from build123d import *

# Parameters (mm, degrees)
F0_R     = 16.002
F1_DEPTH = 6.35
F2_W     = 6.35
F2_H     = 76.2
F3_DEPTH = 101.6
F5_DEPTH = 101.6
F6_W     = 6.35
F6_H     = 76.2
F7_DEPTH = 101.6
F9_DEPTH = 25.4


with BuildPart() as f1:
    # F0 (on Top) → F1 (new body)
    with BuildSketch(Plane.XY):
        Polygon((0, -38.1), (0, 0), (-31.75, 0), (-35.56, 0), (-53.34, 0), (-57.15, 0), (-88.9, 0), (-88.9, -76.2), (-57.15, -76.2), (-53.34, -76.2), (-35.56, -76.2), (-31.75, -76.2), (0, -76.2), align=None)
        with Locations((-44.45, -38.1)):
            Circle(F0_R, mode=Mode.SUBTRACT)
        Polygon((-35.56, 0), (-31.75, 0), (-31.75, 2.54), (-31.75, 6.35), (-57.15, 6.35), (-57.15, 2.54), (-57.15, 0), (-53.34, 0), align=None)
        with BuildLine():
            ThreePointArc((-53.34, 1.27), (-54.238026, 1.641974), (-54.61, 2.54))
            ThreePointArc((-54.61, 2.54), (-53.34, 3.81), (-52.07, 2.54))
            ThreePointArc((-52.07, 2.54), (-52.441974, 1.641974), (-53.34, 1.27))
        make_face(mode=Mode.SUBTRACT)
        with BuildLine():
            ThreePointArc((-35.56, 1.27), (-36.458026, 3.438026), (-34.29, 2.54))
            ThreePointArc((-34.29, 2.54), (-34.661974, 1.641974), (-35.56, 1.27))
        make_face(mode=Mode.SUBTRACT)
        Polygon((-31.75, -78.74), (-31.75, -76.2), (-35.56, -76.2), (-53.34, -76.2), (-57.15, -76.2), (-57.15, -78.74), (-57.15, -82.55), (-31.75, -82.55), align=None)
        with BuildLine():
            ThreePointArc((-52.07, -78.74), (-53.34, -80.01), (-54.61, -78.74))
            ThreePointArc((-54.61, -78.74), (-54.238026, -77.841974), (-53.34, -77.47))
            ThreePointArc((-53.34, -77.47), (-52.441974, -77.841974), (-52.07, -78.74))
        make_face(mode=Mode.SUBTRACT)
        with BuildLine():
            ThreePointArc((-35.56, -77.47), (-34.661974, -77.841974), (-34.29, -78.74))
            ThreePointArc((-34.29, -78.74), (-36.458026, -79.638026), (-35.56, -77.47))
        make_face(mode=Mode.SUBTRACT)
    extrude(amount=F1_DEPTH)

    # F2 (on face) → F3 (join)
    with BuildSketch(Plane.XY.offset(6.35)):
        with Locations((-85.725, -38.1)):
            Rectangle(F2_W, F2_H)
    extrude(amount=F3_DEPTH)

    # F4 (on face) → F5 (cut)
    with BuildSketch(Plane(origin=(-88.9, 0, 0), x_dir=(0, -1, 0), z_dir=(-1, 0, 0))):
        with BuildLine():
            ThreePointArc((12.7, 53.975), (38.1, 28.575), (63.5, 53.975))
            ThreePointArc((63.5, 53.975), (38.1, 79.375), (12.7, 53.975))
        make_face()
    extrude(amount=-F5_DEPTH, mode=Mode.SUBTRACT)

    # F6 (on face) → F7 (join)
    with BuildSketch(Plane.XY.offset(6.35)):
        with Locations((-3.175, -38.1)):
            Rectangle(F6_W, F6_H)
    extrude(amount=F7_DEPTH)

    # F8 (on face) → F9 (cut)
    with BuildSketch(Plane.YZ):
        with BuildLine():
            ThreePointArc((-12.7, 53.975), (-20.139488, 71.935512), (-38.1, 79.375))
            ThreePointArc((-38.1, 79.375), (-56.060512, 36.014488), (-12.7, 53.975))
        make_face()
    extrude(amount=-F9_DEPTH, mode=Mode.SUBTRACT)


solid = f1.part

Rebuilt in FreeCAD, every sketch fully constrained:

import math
import FreeCAD as App
import Part
import Sketcher
Q = App.Units.Quantity


def add_polygon(sketch, points):
    """Adds a closed chain of lines whose ends are joined by coincident constraints."""
    first, n = sketch.GeometryCount, len(points)
    for a, b in zip(points, points[1:] + points[:1]):
        sketch.addGeometry(Part.LineSegment(App.Vector(*a, 0), App.Vector(*b, 0)), False)
    for i in range(n):
        sketch.addConstraint(Sketcher.Constraint("Coincident", first + i, 2, first + (i + 1) % n, 1))

doc = App.newDocument("Part")
body = doc.addObject("PartDesign::Body", "Body")

# Sketch on XY plane
sketch1 = body.newObject("Sketcher::SketchObject", "Sketch")
sketch1.AttachmentSupport = (doc.getObject("XY_Plane"), [""])
sketch1.MapMode = "FlatFace"
add_polygon(sketch1, [(0, 0), (-31.8, 0), (-31.8, 6.3), (-57.1, 6.3), (-57.1, 0), (-88.9, 0), (-88.9, -76.2), (-57.1, -76.2), (-57.1, -82.5), (-31.8, -82.5), (-31.8, -76.2), (0, -76.2)])  # lines 0-11
sketch1.addGeometry(Part.ArcOfCircle(Part.Circle(App.Vector(-53.3, -78.7, 0), App.Vector(0, 0, 1), 1.3), math.radians(0), math.radians(90)), False)  # 12
sketch1.addGeometry(Part.ArcOfCircle(Part.Circle(App.Vector(-53.3, -78.7, 0), App.Vector(0, 0, 1), 1.3), math.radians(180), math.radians(360)), False)  # 13
sketch1.addGeometry(Part.ArcOfCircle(Part.Circle(App.Vector(-53.3, -78.7, 0), App.Vector(0, 0, 1), 1.3), math.radians(90), math.radians(180)), False)  # 14
sketch1.addGeometry(Part.ArcOfCircle(Part.Circle(App.Vector(-35.6, -78.7, 0), App.Vector(0, 0, 1), 1.3), math.radians(90), math.radians(360)), False)  # 15
sketch1.addGeometry(Part.ArcOfCircle(Part.Circle(App.Vector(-35.6, -78.7, 0), App.Vector(0, 0, 1), 1.3), math.radians(0), math.radians(90)), False)  # 16
sketch1.addGeometry(Part.ArcOfCircle(Part.Circle(App.Vector(-53.3, 2.5, 0), App.Vector(0, 0, 1), 1.3), math.radians(-90), math.radians(0)), False)  # 17
sketch1.addGeometry(Part.ArcOfCircle(Part.Circle(App.Vector(-53.3, 2.5, 0), App.Vector(0, 0, 1), 1.3), math.radians(180), math.radians(270)), False)  # 18
sketch1.addGeometry(Part.ArcOfCircle(Part.Circle(App.Vector(-53.3, 2.5, 0), App.Vector(0, 0, 1), 1.3), math.radians(0), math.radians(180)), False)  # 19
sketch1.addGeometry(Part.Circle(App.Vector(-44.5, -38.1, 0), App.Vector(0, 0, 1), 16), False)  # 20
sketch1.addGeometry(Part.ArcOfCircle(Part.Circle(App.Vector(-35.6, 2.5, 0), App.Vector(0, 0, 1), 1.3), math.radians(-90), math.radians(0)), False)  # 21
sketch1.addGeometry(Part.ArcOfCircle(Part.Circle(App.Vector(-35.6, 2.5, 0), App.Vector(0, 0, 1), 1.3), math.radians(0), math.radians(270)), False)  # 22
sketch1.addConstraint([
    Sketcher.Constraint("Tangent", 12, 1, 13, 2),
    Sketcher.Constraint("Tangent", 13, 1, 14, 2),
    Sketcher.Constraint("Coincident", 14, 1, 12, 2),
    Sketcher.Constraint("Tangent", 15, 1, 16, 2),
    Sketcher.Constraint("Coincident", 16, 1, 15, 2),
    Sketcher.Constraint("Coincident", 17, 1, 18, 2),
    Sketcher.Constraint("Tangent", 18, 1, 19, 2),
    Sketcher.Constraint("Tangent", 19, 1, 17, 2),
    Sketcher.Constraint("Tangent", 21, 1, 22, 2),
    Sketcher.Constraint("Coincident", 22, 1, 21, 2),
    Sketcher.Constraint("Horizontal", 0),
    Sketcher.Constraint("Vertical", 1),
    Sketcher.Constraint("Horizontal", 2),
    Sketcher.Constraint("Vertical", 3),
    Sketcher.Constraint("Horizontal", 4),
    Sketcher.Constraint("Vertical", 5),
    Sketcher.Constraint("Horizontal", 6),
    Sketcher.Constraint("Vertical", 7),
    Sketcher.Constraint("Horizontal", 8),
    Sketcher.Constraint("Vertical", 9),
    Sketcher.Constraint("Horizontal", 10),
    Sketcher.Constraint("Vertical", 11),
    Sketcher.Constraint("Coincident", 11, 2, -1, 1),
    Sketcher.Constraint("Equal", 12, 13),
    Sketcher.Constraint("Equal", 14, 15),
    Sketcher.Constraint("Equal", 16, 17),
    Sketcher.Constraint("Equal", 18, 19),
    Sketcher.Constraint("Equal", 19, 21),
    Sketcher.Constraint("PointOnObject", 3, 2, -1),
    Sketcher.Constraint("Horizontal", 14, 3, 15, 3),
    Sketcher.Constraint("Horizontal", 19, 3, 21, 3),
    Sketcher.Constraint("Horizontal", 6, 2, 9, 2),
    Sketcher.Constraint("Horizontal", 16, 3, 12, 1),
    Sketcher.Constraint("Horizontal", 12, 1, 13, 1),
    Sketcher.Constraint("Horizontal", 13, 1, 16, 1),
    Sketcher.Constraint("Horizontal", 22, 3, 18, 1),
    Sketcher.Constraint("Horizontal", 18, 1, 19, 1),
    Sketcher.Constraint("Horizontal", 19, 1, 22, 1),
    Sketcher.Constraint("Vertical", 13, 3, 17, 3),
    Sketcher.Constraint("Vertical", 16, 3, 21, 3),
    Sketcher.Constraint("Vertical", 3, 2, 6, 2),
    Sketcher.Constraint("Vertical", 1, 2, 8, 2),
    Sketcher.Constraint("Vertical", 19, 3, 14, 1),
    Sketcher.Constraint("Vertical", 22, 3, 15, 1),
    Sketcher.Constraint("Vertical", 14, 1, 17, 1),
    Sketcher.Constraint("Vertical", 15, 1, 21, 1),
    Sketcher.Constraint("Equal", 0, 4),
    Sketcher.Constraint("Equal", 3, 7),
    Sketcher.Constraint("Diameter", 20, Q("1.26 in")),
    Sketcher.Constraint("DistanceX", 2, 2, 2, 1, Q("1 in")),
    Sketcher.Constraint("DistanceY", 5, 2, 5, 1, Q("3 in")),
    Sketcher.Constraint("Radius", 12, Q("0.0499999 in")),
    Sketcher.Constraint("DistanceX", 0, 2, 0, 1, Q("1.25 in")),
    Sketcher.Constraint("DistanceY", 1, 1, 1, 2, Q("0.25 in")),
    Sketcher.Constraint("DistanceX", 12, 3, -1, 1, Q("2.0999999 in")),
    Sketcher.Constraint("DistanceY", 12, 3, -1, 1, Q("3.0999999 in")),
    Sketcher.Constraint("DistanceX", 15, 3, -1, 1, Q("1.4 in")),
    Sketcher.Constraint("DistanceY", -1, 1, 17, 3, Q("0.0999999 in")),
    Sketcher.Constraint("DistanceY", 20, 3, -1, 1, Q("1.5 in")),
    Sketcher.Constraint("DistanceX", 20, 3, -1, 1, Q("1.75 in")),
])
pad1 = body.newObject("PartDesign::Pad", "Pad")
pad1.Profile = sketch1
pad1.Length = Q("0.25 in")

# Sketch on XY plane
sketch2 = body.newObject("Sketcher::SketchObject", "Sketch001")
sketch2.AttachmentSupport = (doc.getObject("XY_Plane"), [""])
sketch2.MapMode = "FlatFace"
sketch2.AttachmentOffset = App.Placement(App.Vector(0, 0, 0.25 * 25.4), App.Rotation())
add_polygon(sketch2, [(-89, 0), (-89, -76), (-83, -76), (-83, 0)])  # lines 0-3
sketch2.addConstraint([
    Sketcher.Constraint("Vertical", 0),
    Sketcher.Constraint("Horizontal", 1),
    Sketcher.Constraint("Vertical", 2),
    Sketcher.Constraint("Horizontal", 3),
    Sketcher.Constraint("PointOnObject", 2, 2, -1),
    Sketcher.Constraint("DistanceY", 0, 2, 0, 1, Q("3 in")),
    Sketcher.Constraint("DistanceX", 1, 1, 1, 2, Q("0.25 in")),
    Sketcher.Constraint("DistanceX", 0, 2, -1, 1, Q("3.5 in")),
])
pad2 = body.newObject("PartDesign::Pad", "Pad001")
pad2.Profile = sketch2
pad2.Length = Q("4 in")

# Sketch on YZ plane
sketch3 = body.newObject("Sketcher::SketchObject", "Sketch002")
sketch3.AttachmentSupport = (doc.getObject("YZ_Plane"), [""])
sketch3.MapMode = "FlatFace"
sketch3.AttachmentOffset = App.Placement(App.Vector(0, 0, -3.5 * 25.4), App.Rotation())
sketch3.addGeometry(Part.Circle(App.Vector(-38, 54, 0), App.Vector(0, 0, 1), 25), False)
sketch3.addConstraint([
    Sketcher.Constraint("Diameter", 0, Q("2 in")),
    Sketcher.Constraint("DistanceX", 0, 3, -1, 1, Q("1.5 in")),
    Sketcher.Constraint("DistanceY", -1, 1, 0, 3, Q("2.125 in")),
])
pocket1 = body.newObject("PartDesign::Pocket", "Pocket")
pocket1.Profile = sketch3
pocket1.Length = Q("4 in")
pocket1.Reversed = True

# Sketch on XY plane
sketch4 = body.newObject("Sketcher::SketchObject", "Sketch003")
sketch4.AttachmentSupport = (doc.getObject("XY_Plane"), [""])
sketch4.MapMode = "FlatFace"
sketch4.AttachmentOffset = App.Placement(App.Vector(0, 0, 0.25 * 25.4), App.Rotation())
add_polygon(sketch4, [(-6, 0), (-6, -76), (0, -76), (0, 0)])  # lines 0-3
sketch4.addConstraint([
    Sketcher.Constraint("Vertical", 0),
    Sketcher.Constraint("Horizontal", 1),
    Sketcher.Constraint("Vertical", 2),
    Sketcher.Constraint("Horizontal", 3),
    Sketcher.Constraint("Coincident", 2, 2, -1, 1),
    Sketcher.Constraint("DistanceY", 0, 2, 0, 1, Q("3 in")),
    Sketcher.Constraint("DistanceX", 1, 1, 1, 2, Q("0.25 in")),
])
pad3 = body.newObject("PartDesign::Pad", "Pad002")
pad3.Profile = sketch4
pad3.Length = Q("4 in")

# Sketch on YZ plane
sketch5 = body.newObject("Sketcher::SketchObject", "Sketch004")
sketch5.AttachmentSupport = (doc.getObject("YZ_Plane"), [""])
sketch5.MapMode = "FlatFace"
sketch5.addGeometry([
    Part.ArcOfCircle(Part.Circle(App.Vector(-38, 54, 0), App.Vector(0, 0, 1), 25), math.radians(0), math.radians(90)),
    Part.ArcOfCircle(Part.Circle(App.Vector(-38, 54, 0), App.Vector(0, 0, 1), 25), math.radians(90), math.radians(360)),
], False)
sketch5.addConstraint([
    Sketcher.Constraint("Tangent", 0, 1, 1, 2),
    Sketcher.Constraint("Coincident", 1, 1, 0, 2),
    Sketcher.Constraint("Horizontal", 1, 3, 0, 1),
    Sketcher.Constraint("Vertical", 0, 3, 1, 1),
    Sketcher.Constraint("Radius", 0, Q("1 in")),
    Sketcher.Constraint("DistanceX", 0, 3, -1, 1, Q("1.5 in")),
    Sketcher.Constraint("DistanceY", -1, 1, 0, 3, Q("2.125 in")),
])
pocket2 = body.newObject("PartDesign::Pocket", "Pocket001")
pocket2.Profile = sketch5
pocket2.Length = Q("1 in")

doc.recompute()
